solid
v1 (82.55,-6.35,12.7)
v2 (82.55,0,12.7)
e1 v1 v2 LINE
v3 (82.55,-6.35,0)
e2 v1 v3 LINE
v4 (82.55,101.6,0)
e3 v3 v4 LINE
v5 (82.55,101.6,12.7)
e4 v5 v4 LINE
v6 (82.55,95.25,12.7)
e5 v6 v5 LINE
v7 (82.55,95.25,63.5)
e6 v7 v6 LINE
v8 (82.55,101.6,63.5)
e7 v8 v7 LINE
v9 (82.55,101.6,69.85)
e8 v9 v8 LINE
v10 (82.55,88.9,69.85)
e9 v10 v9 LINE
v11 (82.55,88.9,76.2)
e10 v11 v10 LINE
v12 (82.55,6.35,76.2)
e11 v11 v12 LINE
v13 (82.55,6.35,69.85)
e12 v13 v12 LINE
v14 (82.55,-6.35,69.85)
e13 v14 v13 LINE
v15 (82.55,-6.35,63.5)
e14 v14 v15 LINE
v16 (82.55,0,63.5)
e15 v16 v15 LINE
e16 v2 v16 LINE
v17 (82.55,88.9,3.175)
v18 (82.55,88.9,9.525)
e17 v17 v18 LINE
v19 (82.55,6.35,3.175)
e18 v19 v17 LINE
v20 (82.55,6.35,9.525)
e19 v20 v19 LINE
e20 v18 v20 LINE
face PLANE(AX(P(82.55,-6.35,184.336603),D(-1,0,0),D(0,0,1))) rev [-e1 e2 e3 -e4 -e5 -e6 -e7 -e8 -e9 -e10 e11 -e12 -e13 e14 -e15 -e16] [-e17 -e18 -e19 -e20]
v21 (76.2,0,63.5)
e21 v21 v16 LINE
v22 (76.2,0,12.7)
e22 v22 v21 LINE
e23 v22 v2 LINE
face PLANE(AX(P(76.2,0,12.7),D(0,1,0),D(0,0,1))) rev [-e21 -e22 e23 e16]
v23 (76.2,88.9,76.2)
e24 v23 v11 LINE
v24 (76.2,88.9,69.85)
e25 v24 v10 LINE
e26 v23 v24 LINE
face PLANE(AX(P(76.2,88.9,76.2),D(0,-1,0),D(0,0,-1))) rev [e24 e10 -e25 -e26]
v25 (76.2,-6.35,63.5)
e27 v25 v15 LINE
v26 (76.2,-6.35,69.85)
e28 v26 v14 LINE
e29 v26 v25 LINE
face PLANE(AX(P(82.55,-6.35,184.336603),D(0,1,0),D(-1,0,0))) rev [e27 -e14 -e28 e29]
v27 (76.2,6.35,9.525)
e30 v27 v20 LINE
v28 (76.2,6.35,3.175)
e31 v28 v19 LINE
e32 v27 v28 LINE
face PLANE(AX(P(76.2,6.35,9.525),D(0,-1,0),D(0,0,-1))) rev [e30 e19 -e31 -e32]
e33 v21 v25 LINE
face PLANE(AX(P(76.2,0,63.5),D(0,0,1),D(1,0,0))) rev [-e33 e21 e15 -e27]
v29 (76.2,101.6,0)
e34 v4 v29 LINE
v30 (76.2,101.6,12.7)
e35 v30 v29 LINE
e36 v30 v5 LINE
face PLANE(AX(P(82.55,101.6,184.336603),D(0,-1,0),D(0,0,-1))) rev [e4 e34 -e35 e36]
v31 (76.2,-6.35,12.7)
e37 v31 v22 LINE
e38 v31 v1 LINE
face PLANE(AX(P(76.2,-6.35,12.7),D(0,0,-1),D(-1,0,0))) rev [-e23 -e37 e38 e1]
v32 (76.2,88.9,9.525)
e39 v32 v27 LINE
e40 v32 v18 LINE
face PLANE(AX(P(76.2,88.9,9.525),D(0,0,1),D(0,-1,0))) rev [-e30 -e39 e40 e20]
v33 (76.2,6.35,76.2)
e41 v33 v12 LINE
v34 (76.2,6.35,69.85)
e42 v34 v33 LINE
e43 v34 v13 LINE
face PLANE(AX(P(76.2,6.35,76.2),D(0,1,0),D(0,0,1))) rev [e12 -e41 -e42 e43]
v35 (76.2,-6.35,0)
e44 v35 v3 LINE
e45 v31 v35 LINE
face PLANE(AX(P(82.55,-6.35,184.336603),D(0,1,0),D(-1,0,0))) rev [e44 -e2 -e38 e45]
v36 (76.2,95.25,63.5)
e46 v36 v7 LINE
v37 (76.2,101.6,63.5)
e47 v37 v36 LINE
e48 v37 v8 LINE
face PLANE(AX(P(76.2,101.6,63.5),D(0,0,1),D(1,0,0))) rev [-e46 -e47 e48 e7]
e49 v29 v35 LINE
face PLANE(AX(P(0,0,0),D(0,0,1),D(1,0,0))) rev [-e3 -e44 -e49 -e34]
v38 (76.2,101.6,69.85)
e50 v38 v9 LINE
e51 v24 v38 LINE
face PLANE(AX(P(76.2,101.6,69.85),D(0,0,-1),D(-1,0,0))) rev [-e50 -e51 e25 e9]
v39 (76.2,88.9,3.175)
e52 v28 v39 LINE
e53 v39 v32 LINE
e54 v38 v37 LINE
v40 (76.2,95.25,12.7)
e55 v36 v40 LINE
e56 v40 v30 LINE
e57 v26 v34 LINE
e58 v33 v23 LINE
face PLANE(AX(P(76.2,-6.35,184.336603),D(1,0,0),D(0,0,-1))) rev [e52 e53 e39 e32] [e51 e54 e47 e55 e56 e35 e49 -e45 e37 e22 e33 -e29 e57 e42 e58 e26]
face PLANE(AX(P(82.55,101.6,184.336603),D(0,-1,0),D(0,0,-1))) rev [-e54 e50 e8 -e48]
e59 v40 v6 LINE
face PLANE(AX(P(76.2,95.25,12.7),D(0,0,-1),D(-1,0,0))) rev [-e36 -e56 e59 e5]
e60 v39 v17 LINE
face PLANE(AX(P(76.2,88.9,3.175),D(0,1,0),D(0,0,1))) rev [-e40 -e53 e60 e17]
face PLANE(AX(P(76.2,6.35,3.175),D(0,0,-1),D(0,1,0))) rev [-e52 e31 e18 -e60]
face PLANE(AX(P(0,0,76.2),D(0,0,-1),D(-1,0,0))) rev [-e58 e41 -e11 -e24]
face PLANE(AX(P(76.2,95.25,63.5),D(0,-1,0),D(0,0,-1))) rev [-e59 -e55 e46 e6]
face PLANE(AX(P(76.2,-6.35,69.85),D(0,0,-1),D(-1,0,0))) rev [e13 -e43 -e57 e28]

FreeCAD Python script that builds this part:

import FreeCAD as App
import Part
import Sketcher
from FreeCAD import Vector
Q = App.Units.Quantity


def add_polygon(sketch, points):
    """Adds a closed chain of lines whose ends are joined by coincident constraints."""
    first, n = sketch.GeometryCount, len(points)
    for a, b in zip(points, points[1:] + points[:1]):
        sketch.addGeometry(Part.LineSegment(App.Vector(*a, 0), App.Vector(*b, 0)), False)
    for i in range(n):
        sketch.addConstraint(Sketcher.Constraint("Coincident", first + i, 2, first + (i + 1) % n, 1))

doc = App.newDocument("Part")
body = doc.addObject("PartDesign::Body", "Body")

# Sketch on XY plane
sketch1 = body.newObject("Sketcher::SketchObject", "Sketch")
sketch1.AttachmentSupport = (doc.getObject("XY_Plane"), [""])
sketch1.MapMode = "FlatFace"
add_polygon(sketch1, [(76, 102), (76, -6), (83, -6), (83, 102)])  # lines 0-3
sketch1.addConstraint([
    Sketcher.Constraint("Vertical", 0),
    Sketcher.Constraint("Horizontal", 1),
    Sketcher.Constraint("Vertical", 2),
    Sketcher.Constraint("Horizontal", 3),
    Sketcher.Constraint("DistanceX", -1, 1, 0, 2, Q("3 in")),
    Sketcher.Constraint("DistanceY", -1, 1, 2, 2, Q("4 in")),
    Sketcher.Constraint("DistanceX", 1, 1, 1, 2, Q("0.25 in")),
    Sketcher.Constraint("DistanceY", 0, 2, 0, 1, Q("4.25 in")),
])
pad1 = body.newObject("PartDesign::Pad", "Pad")
pad1.Profile = sketch1
pad1.Length = Q("3 in")

# Sketch on YZ plane
sketch2 = body.newObject("Sketcher::SketchObject", "Sketch001")
sketch2.AttachmentSupport = (doc.getObject("YZ_Plane"), [""])
sketch2.MapMode = "FlatFace"
sketch2.AttachmentOffset = App.Placement(Vector(0, 0, 3.25 * 25.4), App.Rotation())
add_polygon(sketch2, [(102, 76), (89, 76), (89, 70), (102, 70)])  # lines 0-3
add_polygon(sketch2, [(6, 76), (-6, 76), (-6, 70), (6, 70)])  # lines 4-7
add_polygon(sketch2, [(102, 64), (95, 64), (95, 13), (102, 13)])  # lines 8-11
add_polygon(sketch2, [(89, 10), (6, 10), (6, 3), (89, 3)])  # lines 12-15
add_polygon(sketch2, [(0, 64), (-6, 64), (-6, 13), (0, 13)])  # lines 16-19
sketch2.addConstraint([
    Sketcher.Constraint("Horizontal", 0),
    Sketcher.Constraint("Vertical", 1),
    Sketcher.Constraint("Horizontal", 2),
    Sketcher.Constraint("Vertical", 3),
    Sketcher.Constraint("Horizontal", 4),
    Sketcher.Constraint("Vertical", 5),
    Sketcher.Constraint("Horizontal", 6),
    Sketcher.Constraint("Vertical", 7),
    Sketcher.Constraint("Horizontal", 8),
    Sketcher.Constraint("Vertical", 9),
    Sketcher.Constraint("Horizontal", 10),
    Sketcher.Constraint("Vertical", 11),
    Sketcher.Constraint("Horizontal", 12),
    Sketcher.Constraint("Vertical", 13),
    Sketcher.Constraint("Horizontal", 14),
    Sketcher.Constraint("Vertical", 15),
    Sketcher.Constraint("Horizontal", 16),
    Sketcher.Constraint("Vertical", 17),
    Sketcher.Constraint("Horizontal", 18),
    Sketcher.Constraint("Vertical", 19),
    Sketcher.Constraint("PointOnObject", 18, 2, -2),
    Sketcher.Constraint("Horizontal", 3, 2, 4, 2),
    Sketcher.Constraint("Horizontal", 2, 2, 5, 2),
    Sketcher.Constraint("Horizontal", 11, 2, 16, 2),
    Sketcher.Constraint("Horizontal", 10, 2, 17, 2),
    Sketcher.Constraint("Vertical", 3, 2, 10, 2),
    Sketcher.Constraint("Vertical", 7, 2, 12, 2),
    Sketcher.Constraint("Vertical", 1, 2, 14, 2),
    Sketcher.Constraint("Vertical", 5, 2, 16, 2),
    Sketcher.Constraint("Equal", 2, 4),
    Sketcher.Constraint("Equal", 10, 16),
    Sketcher.Constraint("Equal", 18, 1),
    Sketcher.Constraint("Equal", 7, 13),
    Sketcher.Constraint("DistanceY", 9, 2, 9, 1, Q("2 in")),
    Sketcher.Constraint("DistanceX", 0, 2, 0, 1, Q("0.5 in")),
    Sketcher.Constraint("DistanceY", -1, 1, 0, 2, Q("3 in")),
    Sketcher.Constraint("DistanceX", -1, 1, 2, 2, Q("4 in")),
    Sketcher.Constraint("DistanceX", 8, 2, 8, 1, Q("0.25 in")),
    Sketcher.Constraint("DistanceY", -1, 1, 8, 2, Q("2.5 in")),
    Sketcher.Constraint("DistanceY", -1, 1, 12, 2, Q("0.375 in")),
])
pocket1 = body.newObject("PartDesign::Pocket", "Pocket")
pocket1.Profile = sketch2
pocket1.Type = "ThroughAll"

doc.recompute()
